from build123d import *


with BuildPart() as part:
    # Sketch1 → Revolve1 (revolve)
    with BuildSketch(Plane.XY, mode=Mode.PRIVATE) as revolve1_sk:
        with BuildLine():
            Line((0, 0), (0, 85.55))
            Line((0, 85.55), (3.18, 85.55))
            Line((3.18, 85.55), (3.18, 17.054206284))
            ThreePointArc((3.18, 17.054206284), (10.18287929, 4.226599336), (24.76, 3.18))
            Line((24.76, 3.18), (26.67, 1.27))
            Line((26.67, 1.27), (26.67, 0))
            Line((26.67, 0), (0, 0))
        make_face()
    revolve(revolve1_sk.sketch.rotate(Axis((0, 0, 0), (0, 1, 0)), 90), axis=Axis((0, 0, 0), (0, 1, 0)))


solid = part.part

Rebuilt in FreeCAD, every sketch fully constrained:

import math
import FreeCAD as App
import Part
import Sketcher
from FreeCAD import Vector
Q = App.Units.Quantity

doc = App.newDocument("Part")
body = doc.addObject("PartDesign::Body", "Body")

# Sketch on XY plane
sketch1 = body.newObject("Sketcher::SketchObject", "Sketch")
sketch1.AttachmentSupport = (doc.getObject("XY_Plane"), [""])
sketch1.MapMode = "FlatFace"
sketch1.addGeometry([
    Part.LineSegment(Vector(0, 85.5, 0), Vector(0, 0, 0)),  # 0
    Part.LineSegment(Vector(0, 0, 0), Vector(26.7, 0, 0)),  # 1
    Part.LineSegment(Vector(26.7, 0, 0), Vector(26.7, 1.3, 0)),  # 2
    Part.LineSegment(Vector(26.7, 1.3, 0), Vector(24.8, 3.2, 0)),  # 3
    Part.ArcOfCircle(Part.Circle(Vector(18.4, 17.1, 0), Vector(0, 0, 1), 15.2), math.radians(180), math.radians(295)),  # 4
    Part.LineSegment(Vector(3.2, 17.1, 0), Vector(3.2, 85.5, 0)),  # 5
    Part.LineSegment(Vector(3.2, 85.5, 0), Vector(0, 85.5, 0)),  # 6
], False)
sketch1.addConstraint([
    Sketcher.Constraint("Coincident", 0, 2, 1, 1),
    Sketcher.Constraint("Coincident", 1, 2, 2, 1),
    Sketcher.Constraint("Coincident", 2, 2, 3, 1),
    Sketcher.Constraint("Coincident", 3, 2, 4, 2),
    Sketcher.Constraint("Tangent", 4, 1, 5, 1),
    Sketcher.Constraint("Coincident", 5, 2, 6, 1),
    Sketcher.Constraint("Coincident", 6, 2, 0, 1),
    Sketcher.Constraint("Vertical", 0),
    Sketcher.Constraint("Horizontal", 1),
    Sketcher.Constraint("Vertical", 2),
    Sketcher.Constraint("Vertical", 5),
    Sketcher.Constraint("Horizontal", 6),
    Sketcher.Constraint("Coincident", 0, 2, -1, 1),
    Sketcher.Constraint("Angle", 3, Q("135 deg")),
    Sketcher.Constraint("DistanceX", 1, 1, 1, 2, Q("1.05 in")),
    Sketcher.Constraint("DistanceY", 2, 1, 2, 2, Q("0.05 in")),
    Sketcher.Constraint("Radius", 4, 15.25),
    Sketcher.Constraint("DistanceX", 6, 2, 6, 1, 3.18),
    Sketcher.Constraint("DistanceY", 0, 2, 0, 1, 85.55),
    Sketcher.Constraint("DistanceX", -1, 1, 3, 2, 24.76),
])
revolution = body.newObject("PartDesign::Revolution", "Revolution")
revolution.Profile = sketch1
revolution.ReferenceAxis = (sketch1, ["V_Axis"])
revolution.Angle = 360

doc.recompute()
